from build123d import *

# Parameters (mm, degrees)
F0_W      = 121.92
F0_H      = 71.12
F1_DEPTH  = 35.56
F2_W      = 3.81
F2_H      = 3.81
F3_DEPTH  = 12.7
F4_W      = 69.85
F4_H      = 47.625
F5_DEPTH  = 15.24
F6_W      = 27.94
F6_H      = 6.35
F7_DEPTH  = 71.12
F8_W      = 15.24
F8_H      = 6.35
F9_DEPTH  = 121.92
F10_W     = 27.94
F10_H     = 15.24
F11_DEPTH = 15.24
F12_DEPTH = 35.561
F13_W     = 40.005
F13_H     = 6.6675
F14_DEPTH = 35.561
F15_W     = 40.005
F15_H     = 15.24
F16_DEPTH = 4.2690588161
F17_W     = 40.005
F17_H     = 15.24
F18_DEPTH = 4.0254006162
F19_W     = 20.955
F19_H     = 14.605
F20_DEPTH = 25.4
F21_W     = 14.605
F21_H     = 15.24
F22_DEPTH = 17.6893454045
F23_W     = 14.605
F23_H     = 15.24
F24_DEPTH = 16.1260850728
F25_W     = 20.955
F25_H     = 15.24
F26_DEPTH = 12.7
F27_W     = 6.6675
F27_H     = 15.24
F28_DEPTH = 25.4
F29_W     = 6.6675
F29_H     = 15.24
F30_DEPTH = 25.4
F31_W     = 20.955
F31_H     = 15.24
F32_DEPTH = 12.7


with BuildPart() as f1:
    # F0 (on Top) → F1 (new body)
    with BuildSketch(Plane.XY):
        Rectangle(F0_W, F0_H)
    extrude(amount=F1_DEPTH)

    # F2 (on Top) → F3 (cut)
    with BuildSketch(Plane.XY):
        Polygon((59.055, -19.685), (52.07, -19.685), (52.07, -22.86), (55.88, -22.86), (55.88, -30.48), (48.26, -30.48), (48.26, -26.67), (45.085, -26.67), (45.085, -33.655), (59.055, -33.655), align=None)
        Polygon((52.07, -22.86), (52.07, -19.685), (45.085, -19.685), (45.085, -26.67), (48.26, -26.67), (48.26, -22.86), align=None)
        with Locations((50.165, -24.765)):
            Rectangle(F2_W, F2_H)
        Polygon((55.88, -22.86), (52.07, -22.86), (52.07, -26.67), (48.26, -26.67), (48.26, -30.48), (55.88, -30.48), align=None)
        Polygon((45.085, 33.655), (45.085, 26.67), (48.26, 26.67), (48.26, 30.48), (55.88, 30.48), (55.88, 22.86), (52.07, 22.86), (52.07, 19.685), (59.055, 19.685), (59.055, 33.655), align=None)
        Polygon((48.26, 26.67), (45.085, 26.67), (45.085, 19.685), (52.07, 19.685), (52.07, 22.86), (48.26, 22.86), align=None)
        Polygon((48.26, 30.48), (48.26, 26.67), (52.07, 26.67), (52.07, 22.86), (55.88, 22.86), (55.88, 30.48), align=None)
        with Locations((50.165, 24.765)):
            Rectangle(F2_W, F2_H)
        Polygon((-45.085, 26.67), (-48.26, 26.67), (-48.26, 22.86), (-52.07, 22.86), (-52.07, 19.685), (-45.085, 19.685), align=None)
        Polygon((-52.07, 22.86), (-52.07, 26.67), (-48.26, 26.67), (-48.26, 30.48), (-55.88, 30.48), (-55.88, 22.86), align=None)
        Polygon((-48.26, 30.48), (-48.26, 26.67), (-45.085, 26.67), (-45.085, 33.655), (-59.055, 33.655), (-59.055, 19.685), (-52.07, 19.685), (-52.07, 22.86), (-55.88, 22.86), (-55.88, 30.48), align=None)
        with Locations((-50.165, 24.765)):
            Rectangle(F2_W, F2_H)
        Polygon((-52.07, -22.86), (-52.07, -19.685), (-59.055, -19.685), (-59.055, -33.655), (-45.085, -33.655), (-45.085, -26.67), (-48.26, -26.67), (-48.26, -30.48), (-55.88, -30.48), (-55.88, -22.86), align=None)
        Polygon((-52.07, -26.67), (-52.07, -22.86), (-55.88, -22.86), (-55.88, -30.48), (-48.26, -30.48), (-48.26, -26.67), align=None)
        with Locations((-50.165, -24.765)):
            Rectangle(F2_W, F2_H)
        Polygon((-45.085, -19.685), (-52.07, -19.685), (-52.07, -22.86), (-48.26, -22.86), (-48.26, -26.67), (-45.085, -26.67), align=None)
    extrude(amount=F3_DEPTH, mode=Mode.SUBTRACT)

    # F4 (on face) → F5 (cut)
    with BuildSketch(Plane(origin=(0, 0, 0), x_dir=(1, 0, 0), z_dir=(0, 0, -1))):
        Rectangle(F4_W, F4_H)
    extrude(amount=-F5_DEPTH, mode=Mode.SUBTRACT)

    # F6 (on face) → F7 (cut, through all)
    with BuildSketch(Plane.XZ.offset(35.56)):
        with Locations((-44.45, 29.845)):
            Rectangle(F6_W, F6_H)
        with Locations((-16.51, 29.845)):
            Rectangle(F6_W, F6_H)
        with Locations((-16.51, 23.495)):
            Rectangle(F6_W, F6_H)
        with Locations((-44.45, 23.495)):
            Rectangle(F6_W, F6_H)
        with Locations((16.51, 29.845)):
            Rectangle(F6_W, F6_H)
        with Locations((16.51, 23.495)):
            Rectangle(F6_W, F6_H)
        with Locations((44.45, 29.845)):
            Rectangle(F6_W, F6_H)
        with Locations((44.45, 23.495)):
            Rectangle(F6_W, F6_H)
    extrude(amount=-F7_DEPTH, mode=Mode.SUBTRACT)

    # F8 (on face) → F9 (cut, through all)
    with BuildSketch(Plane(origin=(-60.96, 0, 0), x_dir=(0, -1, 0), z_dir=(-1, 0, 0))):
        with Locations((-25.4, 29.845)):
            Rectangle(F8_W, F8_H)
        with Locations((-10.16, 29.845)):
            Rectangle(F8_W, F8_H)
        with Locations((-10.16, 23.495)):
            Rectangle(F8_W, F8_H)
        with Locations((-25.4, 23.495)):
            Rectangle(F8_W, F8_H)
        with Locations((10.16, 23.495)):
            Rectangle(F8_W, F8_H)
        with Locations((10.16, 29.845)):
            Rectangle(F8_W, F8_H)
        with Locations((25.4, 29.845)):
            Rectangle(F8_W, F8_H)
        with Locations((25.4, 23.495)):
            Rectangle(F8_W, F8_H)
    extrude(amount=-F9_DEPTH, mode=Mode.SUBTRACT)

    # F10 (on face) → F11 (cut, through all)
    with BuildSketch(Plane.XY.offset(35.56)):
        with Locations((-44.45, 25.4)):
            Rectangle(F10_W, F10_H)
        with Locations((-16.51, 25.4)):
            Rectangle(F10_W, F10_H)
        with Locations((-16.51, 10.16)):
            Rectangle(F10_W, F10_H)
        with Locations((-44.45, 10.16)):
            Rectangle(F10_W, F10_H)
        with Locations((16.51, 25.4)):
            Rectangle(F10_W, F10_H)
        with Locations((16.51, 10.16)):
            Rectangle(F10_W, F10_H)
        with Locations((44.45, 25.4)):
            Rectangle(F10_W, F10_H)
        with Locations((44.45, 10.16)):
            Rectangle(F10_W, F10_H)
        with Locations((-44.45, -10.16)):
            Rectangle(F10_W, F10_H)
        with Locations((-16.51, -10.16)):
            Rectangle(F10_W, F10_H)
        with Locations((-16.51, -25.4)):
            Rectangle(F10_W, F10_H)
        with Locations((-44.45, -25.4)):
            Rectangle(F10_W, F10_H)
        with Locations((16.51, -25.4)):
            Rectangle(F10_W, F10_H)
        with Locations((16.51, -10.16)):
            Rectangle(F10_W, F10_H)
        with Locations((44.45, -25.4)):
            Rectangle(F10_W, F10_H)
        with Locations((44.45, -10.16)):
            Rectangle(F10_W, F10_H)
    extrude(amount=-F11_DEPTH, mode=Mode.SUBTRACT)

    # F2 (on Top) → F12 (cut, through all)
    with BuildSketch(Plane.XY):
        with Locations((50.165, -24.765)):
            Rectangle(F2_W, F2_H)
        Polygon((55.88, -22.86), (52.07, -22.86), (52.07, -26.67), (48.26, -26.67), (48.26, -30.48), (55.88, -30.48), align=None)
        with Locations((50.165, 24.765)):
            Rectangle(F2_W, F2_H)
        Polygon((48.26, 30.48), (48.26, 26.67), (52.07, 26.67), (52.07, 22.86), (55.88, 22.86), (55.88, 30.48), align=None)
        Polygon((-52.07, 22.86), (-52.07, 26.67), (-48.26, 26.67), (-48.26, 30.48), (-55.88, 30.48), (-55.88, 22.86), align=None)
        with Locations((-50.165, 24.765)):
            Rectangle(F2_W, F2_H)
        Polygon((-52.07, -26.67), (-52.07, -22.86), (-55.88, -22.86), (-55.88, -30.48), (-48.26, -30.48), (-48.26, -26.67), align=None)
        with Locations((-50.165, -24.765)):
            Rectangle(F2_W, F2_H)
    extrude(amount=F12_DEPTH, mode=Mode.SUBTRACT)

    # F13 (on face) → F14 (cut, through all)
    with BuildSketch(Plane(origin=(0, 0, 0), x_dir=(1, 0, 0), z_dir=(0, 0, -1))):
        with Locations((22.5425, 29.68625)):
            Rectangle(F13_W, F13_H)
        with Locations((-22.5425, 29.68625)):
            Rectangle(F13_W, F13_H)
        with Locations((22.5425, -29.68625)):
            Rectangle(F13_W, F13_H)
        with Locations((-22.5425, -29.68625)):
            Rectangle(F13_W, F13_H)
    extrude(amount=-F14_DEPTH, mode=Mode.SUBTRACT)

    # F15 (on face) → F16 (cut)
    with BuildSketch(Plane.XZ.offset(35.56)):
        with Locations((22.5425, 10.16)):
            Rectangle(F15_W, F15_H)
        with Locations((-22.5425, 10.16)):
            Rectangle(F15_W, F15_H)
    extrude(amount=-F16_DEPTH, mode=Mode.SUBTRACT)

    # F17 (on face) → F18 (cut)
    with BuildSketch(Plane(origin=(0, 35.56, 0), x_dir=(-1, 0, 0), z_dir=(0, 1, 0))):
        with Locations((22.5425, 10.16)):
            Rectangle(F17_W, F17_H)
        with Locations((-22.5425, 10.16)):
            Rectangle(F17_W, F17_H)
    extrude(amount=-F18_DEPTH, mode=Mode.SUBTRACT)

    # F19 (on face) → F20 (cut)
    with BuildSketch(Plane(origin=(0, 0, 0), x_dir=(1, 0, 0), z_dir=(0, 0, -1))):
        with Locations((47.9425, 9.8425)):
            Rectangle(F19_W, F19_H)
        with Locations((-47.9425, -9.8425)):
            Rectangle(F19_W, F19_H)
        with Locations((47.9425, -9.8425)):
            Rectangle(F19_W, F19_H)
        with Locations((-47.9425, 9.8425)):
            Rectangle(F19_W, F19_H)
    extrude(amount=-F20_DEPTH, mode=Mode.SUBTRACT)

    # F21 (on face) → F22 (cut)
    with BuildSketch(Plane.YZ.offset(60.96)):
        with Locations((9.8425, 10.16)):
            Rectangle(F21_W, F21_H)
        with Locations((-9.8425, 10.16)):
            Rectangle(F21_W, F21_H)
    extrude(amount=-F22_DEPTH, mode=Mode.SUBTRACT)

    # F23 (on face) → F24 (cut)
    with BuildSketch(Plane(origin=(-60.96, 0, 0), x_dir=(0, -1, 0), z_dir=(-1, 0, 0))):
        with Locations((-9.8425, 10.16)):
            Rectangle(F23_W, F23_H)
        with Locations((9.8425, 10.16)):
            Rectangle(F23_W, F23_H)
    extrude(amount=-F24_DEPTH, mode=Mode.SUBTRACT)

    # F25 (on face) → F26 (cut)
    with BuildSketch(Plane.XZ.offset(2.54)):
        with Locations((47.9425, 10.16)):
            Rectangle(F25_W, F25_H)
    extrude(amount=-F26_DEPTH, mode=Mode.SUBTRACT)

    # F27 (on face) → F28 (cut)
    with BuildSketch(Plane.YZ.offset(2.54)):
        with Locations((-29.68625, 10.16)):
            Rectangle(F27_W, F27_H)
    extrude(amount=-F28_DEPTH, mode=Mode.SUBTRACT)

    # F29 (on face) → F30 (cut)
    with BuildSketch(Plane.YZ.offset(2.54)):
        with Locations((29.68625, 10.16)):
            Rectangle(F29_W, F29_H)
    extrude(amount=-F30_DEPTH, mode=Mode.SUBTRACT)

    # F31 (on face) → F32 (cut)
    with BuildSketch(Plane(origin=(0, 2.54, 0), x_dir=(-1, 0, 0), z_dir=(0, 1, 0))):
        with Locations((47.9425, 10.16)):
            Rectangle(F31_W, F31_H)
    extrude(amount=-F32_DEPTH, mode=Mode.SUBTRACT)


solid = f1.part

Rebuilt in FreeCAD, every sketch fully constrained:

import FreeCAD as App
import Part
import Sketcher
Q = App.Units.Quantity


def add_polygon(sketch, points):
    """Adds a closed chain of lines whose ends are joined by coincident constraints."""
    first, n = sketch.GeometryCount, len(points)
    for a, b in zip(points, points[1:] + points[:1]):
        sketch.addGeometry(Part.LineSegment(App.Vector(*a, 0), App.Vector(*b, 0)), False)
    for i in range(n):
        sketch.addConstraint(Sketcher.Constraint("Coincident", first + i, 2, first + (i + 1) % n, 1))

doc = App.newDocument("Part")
body = doc.addObject("PartDesign::Body", "Body")

# Sketch on XY plane
sketch1 = body.newObject("Sketcher::SketchObject", "Sketch")
sketch1.AttachmentSupport = (doc.getObject("XY_Plane"), [""])
sketch1.MapMode = "FlatFace"
add_polygon(sketch1, [(-61, 36), (-61, -36), (61, -36), (61, 36)])  # lines 0-3
sketch1.addConstraint(Sketcher.Constraint("Vertical", 0))
sketch1.addConstraint(Sketcher.Constraint("Horizontal", 1))
sketch1.addConstraint(Sketcher.Constraint("Vertical", 2))
sketch1.addConstraint(Sketcher.Constraint("Horizontal", 3))
sketch1.addConstraint(Sketcher.Constraint("Symmetric", 0, 2, 2, 2, -1, 1))
sketch1.addConstraint(Sketcher.Constraint("DistanceX", 1, 1, 1, 2, Q("4.8 in")))
sketch1.addConstraint(Sketcher.Constraint("DistanceY", 0, 2, 0, 1, Q("2.8 in")))
pad1 = body.newObject("PartDesign::Pad", "Pad")
pad1.Profile = sketch1
pad1.Length = Q("1.4 in")

# Sketch on XY plane
sketch2 = body.newObject("Sketcher::SketchObject", "Sketch001")
sketch2.AttachmentSupport = (doc.getObject("XY_Plane"), [""])
sketch2.MapMode = "FlatFace"
add_polygon(sketch2, [(59, -20), (45, -20), (45, -34), (59, -34)])  # lines 0-3
add_polygon(sketch2, [(45, 34), (45, 20), (59, 20), (59, 34)])  # lines 4-7
add_polygon(sketch2, [(-45, 20), (-45, 34), (-59, 34), (-59, 20)])  # lines 8-11
add_polygon(sketch2, [(-59, -20), (-59, -34), (-45, -34), (-45, -20)])  # lines 12-15
sketch2.addConstraint(Sketcher.Constraint("Horizontal", 0))
sketch2.addConstraint(Sketcher.Constraint("Vertical", 1))
sketch2.addConstraint(Sketcher.Constraint("Horizontal", 2))
sketch2.addConstraint(Sketcher.Constraint("Vertical", 3))
sketch2.addConstraint(Sketcher.Constraint("Vertical", 4))
sketch2.addConstraint(Sketcher.Constraint("Horizontal", 5))
sketch2.addConstraint(Sketcher.Constraint("Vertical", 6))
sketch2.addConstraint(Sketcher.Constraint("Horizontal", 7))
sketch2.addConstraint(Sketcher.Constraint("Vertical", 8))
sketch2.addConstraint(Sketcher.Constraint("Horizontal", 9))
sketch2.addConstraint(Sketcher.Constraint("Vertical", 10))
sketch2.addConstraint(Sketcher.Constraint("Horizontal", 11))
sketch2.addConstraint(Sketcher.Constraint("Vertical", 12))
sketch2.addConstraint(Sketcher.Constraint("Horizontal", 13))
sketch2.addConstraint(Sketcher.Constraint("Vertical", 14))
sketch2.addConstraint(Sketcher.Constraint("Horizontal", 15))
sketch2.addConstraint(Sketcher.Constraint("Symmetric", 1, 2, 8, 2, -1, 1))
sketch2.addConstraint(Sketcher.Constraint("Symmetric", 3, 2, 10, 2, -1, 1))
sketch2.addConstraint(Sketcher.Constraint("Symmetric", 6, 2, 12, 2, -1, 1))
sketch2.addConstraint(Sketcher.Constraint("Symmetric", 4, 2, 14, 2, -1, 1))
sketch2.addConstraint(Sketcher.Constraint("Symmetric", 7, 2, 8, 2, -2))
sketch2.addConstraint(Sketcher.Constraint("Symmetric", 5, 2, 10, 2, -2))
sketch2.addConstraint(Sketcher.Constraint("Equal", 15, 1))
sketch2.addConstraint(Sketcher.Constraint("DistanceX", 0, 2, 0, 1, Q("0.55 in")))
sketch2.addConstraint(Sketcher.Constraint("DistanceY", 1, 2, 4, 2, Q("2.1 in")))
sketch2.addConstraint(Sketcher.Constraint("DistanceX", 8, 2, 6, 2, Q("4.1 in")))
pocket1 = body.newObject("PartDesign::Pocket", "Pocket")
pocket1.Profile = sketch2
pocket1.Length = Q("0.5 in")
pocket1.Reversed = True

# Sketch on XY plane
sketch3 = body.newObject("Sketcher::SketchObject", "Sketch002")
sketch3.AttachmentSupport = (doc.getObject("XY_Plane"), [""])
sketch3.MapMode = "FlatFace"
add_polygon(sketch3, [(-35, -24), (-35, 24), (35, 24), (35, -24)])  # lines 0-3
sketch3.addConstraint(Sketcher.Constraint("Vertical", 0))
sketch3.addConstraint(Sketcher.Constraint("Horizontal", 1))
sketch3.addConstraint(Sketcher.Constraint("Vertical", 2))
sketch3.addConstraint(Sketcher.Constraint("Horizontal", 3))
sketch3.addConstraint(Sketcher.Constraint("Symmetric", 0, 2, 2, 2, -1, 1))
sketch3.addConstraint(Sketcher.Constraint("DistanceX", 1, 1, 1, 2, Q("2.75 in")))
sketch3.addConstraint(Sketcher.Constraint("DistanceY", 0, 1, 0, 2, Q("1.875 in")))
pocket2 = body.newObject("PartDesign::Pocket", "Pocket001")
pocket2.Profile = sketch3
pocket2.Length = Q("0.6 in")
pocket2.Reversed = True

# Sketch on XZ plane
sketch4 = body.newObject("Sketcher::SketchObject", "Sketch003")
sketch4.AttachmentSupport = (doc.getObject("XZ_Plane"), [""])
sketch4.MapMode = "FlatFace"
sketch4.AttachmentOffset = App.Placement(App.Vector(0, 0, 1.4 * 25.4), App.Rotation())
add_polygon(sketch4, [(-58, 33), (-58, 20), (-3, 20), (-3, 33)])  # lines 0-3
add_polygon(sketch4, [(3, 33), (3, 20), (58, 20), (58, 33)])  # lines 4-7
sketch4.addConstraint(Sketcher.Constraint("Vertical", 0))
sketch4.addConstraint(Sketcher.Constraint("Horizontal", 1))
sketch4.addConstraint(Sketcher.Constraint("Vertical", 2))
sketch4.addConstraint(Sketcher.Constraint("Horizontal", 3))
sketch4.addConstraint(Sketcher.Constraint("Vertical", 4))
sketch4.addConstraint(Sketcher.Constraint("Horizontal", 5))
sketch4.addConstraint(Sketcher.Constraint("Vertical", 6))
sketch4.addConstraint(Sketcher.Constraint("Horizontal", 7))
sketch4.addConstraint(Sketcher.Constraint("Symmetric", 1, 2, 4, 2, -2))
sketch4.addConstraint(Sketcher.Constraint("Symmetric", 3, 2, 6, 2, -2))
sketch4.addConstraint(Sketcher.Constraint("DistanceX", 1, 1, 1, 2, Q("2.2 in")))
sketch4.addConstraint(Sketcher.Constraint("DistanceY", 0, 2, 0, 1, Q("0.5 in")))
sketch4.addConstraint(Sketcher.Constraint("DistanceX", 0, 2, -1, 1, Q("2.3 in")))
sketch4.addConstraint(Sketcher.Constraint("DistanceY", -1, 1, 0, 2, Q("0.8 in")))
pocket3 = body.newObject("PartDesign::Pocket", "Pocket002")
pocket3.Profile = sketch4
pocket3.Type = "ThroughAll"

# Sketch on YZ plane
sketch5 = body.newObject("Sketcher::SketchObject", "Sketch004")
sketch5.AttachmentSupport = (doc.getObject("YZ_Plane"), [""])
sketch5.MapMode = "FlatFace"
sketch5.AttachmentOffset = App.Placement(App.Vector(0, 0, -2.4 * 25.4), App.Rotation())
add_polygon(sketch5, [(33, 33), (33, 20), (3, 20), (3, 33)])  # lines 0-3
add_polygon(sketch5, [(-3, 20), (-33, 20), (-33, 33), (-3, 33)])  # lines 4-7
sketch5.addConstraint(Sketcher.Constraint("Vertical", 0))
sketch5.addConstraint(Sketcher.Constraint("Horizontal", 1))
sketch5.addConstraint(Sketcher.Constraint("Vertical", 2))
sketch5.addConstraint(Sketcher.Constraint("Horizontal", 3))
sketch5.addConstraint(Sketcher.Constraint("Horizontal", 4))
sketch5.addConstraint(Sketcher.Constraint("Vertical", 5))
sketch5.addConstraint(Sketcher.Constraint("Horizontal", 6))
sketch5.addConstraint(Sketcher.Constraint("Vertical", 7))
sketch5.addConstraint(Sketcher.Constraint("Symmetric", 0, 2, 4, 2, -2))
sketch5.addConstraint(Sketcher.Constraint("Symmetric", 2, 2, 6, 2, -2))
sketch5.addConstraint(Sketcher.Constraint("DistanceX", 1, 2, 1, 1, Q("1.2 in")))
sketch5.addConstraint(Sketcher.Constraint("DistanceY", 0, 2, 0, 1, Q("0.5 in")))
sketch5.addConstraint(Sketcher.Constraint("DistanceX", -1, 1, 0, 2, Q("1.3 in")))
sketch5.addConstraint(Sketcher.Constraint("DistanceY", -1, 1, 0, 2, Q("0.8 in")))
pocket4 = body.newObject("PartDesign::Pocket", "Pocket003")
pocket4.Profile = sketch5
pocket4.Type = "ThroughAll"
pocket4.Reversed = True

# Sketch on XY plane
sketch6 = body.newObject("Sketcher::SketchObject", "Sketch005")
sketch6.AttachmentSupport = (doc.getObject("XY_Plane"), [""])
sketch6.MapMode = "FlatFace"
sketch6.AttachmentOffset = App.Placement(App.Vector(0, 0, 1.4 * 25.4), App.Rotation())
add_polygon(sketch6, [(-58, 33), (-58, 3), (-3, 3), (-3, 33)])  # lines 0-3
add_polygon(sketch6, [(3, 33), (3, 3), (58, 3), (58, 33)])  # lines 4-7
add_polygon(sketch6, [(-58, -3), (-58, -33), (-3, -33), (-3, -3)])  # lines 8-11
add_polygon(sketch6, [(3, -33), (58, -33), (58, -3), (3, -3)])  # lines 12-15
sketch6.addConstraint(Sketcher.Constraint("Vertical", 0))
sketch6.addConstraint(Sketcher.Constraint("Horizontal", 1))
sketch6.addConstraint(Sketcher.Constraint("Vertical", 2))
sketch6.addConstraint(Sketcher.Constraint("Horizontal", 3))
sketch6.addConstraint(Sketcher.Constraint("Vertical", 4))
sketch6.addConstraint(Sketcher.Constraint("Horizontal", 5))
sketch6.addConstraint(Sketcher.Constraint("Vertical", 6))
sketch6.addConstraint(Sketcher.Constraint("Horizontal", 7))
sketch6.addConstraint(Sketcher.Constraint("Vertical", 8))
sketch6.addConstraint(Sketcher.Constraint("Horizontal", 9))
sketch6.addConstraint(Sketcher.Constraint("Vertical", 10))
sketch6.addConstraint(Sketcher.Constraint("Horizontal", 11))
sketch6.addConstraint(Sketcher.Constraint("Horizontal", 12))
sketch6.addConstraint(Sketcher.Constraint("Vertical", 13))
sketch6.addConstraint(Sketcher.Constraint("Horizontal", 14))
sketch6.addConstraint(Sketcher.Constraint("Vertical", 15))
sketch6.addConstraint(Sketcher.Constraint("Symmetric", 6, 2, 8, 2, -1, 1))
sketch6.addConstraint(Sketcher.Constraint("Symmetric", 4, 2, 10, 2, -1, 1))
sketch6.addConstraint(Sketcher.Constraint("Symmetric", 3, 2, 12, 2, -1, 1))
sketch6.addConstraint(Sketcher.Constraint("Symmetric", 1, 2, 14, 2, -1, 1))
sketch6.addConstraint(Sketcher.Constraint("Symmetric", 1, 2, 4, 2, -2))
sketch6.addConstraint(Sketcher.Constraint("Symmetric", 3, 2, 6, 2, -2))
sketch6.addConstraint(Sketcher.Constraint("DistanceX", 1, 1, 1, 2, Q("2.2 in")))
sketch6.addConstraint(Sketcher.Constraint("DistanceY", 0, 2, 0, 1, Q("1.2 in")))
sketch6.addConstraint(Sketcher.Constraint("DistanceX", 0, 2, -1, 1, Q("2.3 in")))
sketch6.addConstraint(Sketcher.Constraint("DistanceY", -1, 1, 0, 2, Q("0.1 in")))
pocket5 = body.newObject("PartDesign::Pocket", "Pocket004")
pocket5.Profile = sketch6
pocket5.Length = Q("0.6 in")

# Sketch on XY plane
sketch7 = body.newObject("Sketcher::SketchObject", "Sketch006")
sketch7.AttachmentSupport = (doc.getObject("XY_Plane"), [""])
sketch7.MapMode = "FlatFace"
add_polygon(sketch7, [(48, -23), (48, -30), (56, -30), (56, -23)])  # lines 0-3
add_polygon(sketch7, [(48, 23), (56, 23), (56, 30), (48, 30)])  # lines 4-7
add_polygon(sketch7, [(-48, 30), (-56, 30), (-56, 23), (-48, 23)])  # lines 8-11
add_polygon(sketch7, [(-56, -23), (-56, -30), (-48, -30), (-48, -23)])  # lines 12-15
sketch7.addConstraint(Sketcher.Constraint("Vertical", 0))
sketch7.addConstraint(Sketcher.Constraint("Horizontal", 1))
sketch7.addConstraint(Sketcher.Constraint("Vertical", 2))
sketch7.addConstraint(Sketcher.Constraint("Horizontal", 3))
sketch7.addConstraint(Sketcher.Constraint("Horizontal", 4))
sketch7.addConstraint(Sketcher.Constraint("Vertical", 5))
sketch7.addConstraint(Sketcher.Constraint("Horizontal", 6))
sketch7.addConstraint(Sketcher.Constraint("Vertical", 7))
sketch7.addConstraint(Sketcher.Constraint("Horizontal", 8))
sketch7.addConstraint(Sketcher.Constraint("Vertical", 9))
sketch7.addConstraint(Sketcher.Constraint("Horizontal", 10))
sketch7.addConstraint(Sketcher.Constraint("Vertical", 11))
sketch7.addConstraint(Sketcher.Constraint("Vertical", 12))
sketch7.addConstraint(Sketcher.Constraint("Horizontal", 13))
sketch7.addConstraint(Sketcher.Constraint("Vertical", 14))
sketch7.addConstraint(Sketcher.Constraint("Horizontal", 15))
sketch7.addConstraint(Sketcher.Constraint("Symmetric", 1, 2, 8, 2, -1, 1))
sketch7.addConstraint(Sketcher.Constraint("Symmetric", 3, 2, 10, 2, -1, 1))
sketch7.addConstraint(Sketcher.Constraint("Symmetric", 5, 2, 12, 2, -1, 1))
sketch7.addConstraint(Sketcher.Constraint("Symmetric", 7, 2, 14, 2, -1, 1))
sketch7.addConstraint(Sketcher.Constraint("Symmetric", 5, 2, 8, 2, -2))
sketch7.addConstraint(Sketcher.Constraint("Symmetric", 7, 2, 10, 2, -2))
sketch7.addConstraint(Sketcher.Constraint("Equal", 15, 0))
sketch7.addConstraint(Sketcher.Constraint("DistanceX", 1, 1, 1, 2, Q("0.3 in")))
sketch7.addConstraint(Sketcher.Constraint("DistanceX", -1, 1, 0, 2, Q("1.9 in")))
sketch7.addConstraint(Sketcher.Constraint("DistanceY", 0, 2, -1, 1, Q("1.2 in")))
pocket6 = body.newObject("PartDesign::Pocket", "Pocket005")
pocket6.Profile = sketch7
pocket6.Type = "ThroughAll"
pocket6.Reversed = True

# Sketch on XY plane
sketch8 = body.newObject("Sketcher::SketchObject", "Sketch007")
sketch8.AttachmentSupport = (doc.getObject("XY_Plane"), [""])
sketch8.MapMode = "FlatFace"
add_polygon(sketch8, [(3, -33), (3, -26), (43, -26), (43, -33)])  # lines 0-3
add_polygon(sketch8, [(-43, -33), (-43, -26), (-3, -26), (-3, -33)])  # lines 4-7
add_polygon(sketch8, [(3, 26), (3, 33), (43, 33), (43, 26)])  # lines 8-11
add_polygon(sketch8, [(-43, 26), (-43, 33), (-3, 33), (-3, 26)])  # lines 12-15
sketch8.addConstraint(Sketcher.Constraint("Vertical", 0))
sketch8.addConstraint(Sketcher.Constraint("Horizontal", 1))
sketch8.addConstraint(Sketcher.Constraint("Vertical", 2))
sketch8.addConstraint(Sketcher.Constraint("Horizontal", 3))
sketch8.addConstraint(Sketcher.Constraint("Vertical", 4))
sketch8.addConstraint(Sketcher.Constraint("Horizontal", 5))
sketch8.addConstraint(Sketcher.Constraint("Vertical", 6))
sketch8.addConstraint(Sketcher.Constraint("Horizontal", 7))
sketch8.addConstraint(Sketcher.Constraint("Vertical", 8))
sketch8.addConstraint(Sketcher.Constraint("Horizontal", 9))
sketch8.addConstraint(Sketcher.Constraint("Vertical", 10))
sketch8.addConstraint(Sketcher.Constraint("Horizontal", 11))
sketch8.addConstraint(Sketcher.Constraint("Vertical", 12))
sketch8.addConstraint(Sketcher.Constraint("Horizontal", 13))
sketch8.addConstraint(Sketcher.Constraint("Vertical", 14))
sketch8.addConstraint(Sketcher.Constraint("Horizontal", 15))
sketch8.addConstraint(Sketcher.Constraint("Symmetric", 6, 2, 8, 2, -1, 1))
sketch8.addConstraint(Sketcher.Constraint("Symmetric", 4, 2, 10, 2, -1, 1))
sketch8.addConstraint(Sketcher.Constraint("Symmetric", 2, 2, 12, 2, -1, 1))
sketch8.addConstraint(Sketcher.Constraint("Symmetric", 0, 2, 14, 2, -1, 1))
sketch8.addConstraint(Sketcher.Constraint("Symmetric", 1, 2, 4, 2, -2))
sketch8.addConstraint(Sketcher.Constraint("Symmetric", 3, 2, 6, 2, -2))
sketch8.addConstraint(Sketcher.Constraint("DistanceX", -1, 1, 0, 2, Q("0.1 in")))
sketch8.addConstraint(Sketcher.Constraint("DistanceY", 2, 2, -1, 1, Q("1.3 in")))
sketch8.addConstraint(Sketcher.Constraint("DistanceX", 1, 1, 1, 2, Q("1.575 in")))
sketch8.addConstraint(Sketcher.Constraint("DistanceY", 0, 1, 0, 2, Q("0.2625 in")))
pocket7 = body.newObject("PartDesign::Pocket", "Pocket006")
pocket7.Profile = sketch8
pocket7.Type = "ThroughAll"
pocket7.Reversed = True

# Sketch on XZ plane
sketch9 = body.newObject("Sketcher::SketchObject", "Sketch008")
sketch9.AttachmentSupport = (doc.getObject("XZ_Plane"), [""])
sketch9.MapMode = "FlatFace"
sketch9.AttachmentOffset = App.Placement(App.Vector(0, 0, 1.4 * 25.4), App.Rotation())
add_polygon(sketch9, [(3, 18), (3, 3), (43, 3), (43, 18)])  # lines 0-3
add_polygon(sketch9, [(-43, 18), (-43, 3), (-3, 3), (-3, 18)])  # lines 4-7
sketch9.addConstraint(Sketcher.Constraint("Vertical", 0))
sketch9.addConstraint(Sketcher.Constraint("Horizontal", 1))
sketch9.addConstraint(Sketcher.Constraint("Vertical", 2))
sketch9.addConstraint(Sketcher.Constraint("Horizontal", 3))
sketch9.addConstraint(Sketcher.Constraint("Vertical", 4))
sketch9.addConstraint(Sketcher.Constraint("Horizontal", 5))
sketch9.addConstraint(Sketcher.Constraint("Vertical", 6))
sketch9.addConstraint(Sketcher.Constraint("Horizontal", 7))
sketch9.addConstraint(Sketcher.Constraint("Symmetric", 1, 2, 4, 2, -2))
sketch9.addConstraint(Sketcher.Constraint("Symmetric", 3, 2, 6, 2, -2))
sketch9.addConstraint(Sketcher.Constraint("DistanceY", 0, 2, 0, 1, Q("0.6 in")))
sketch9.addConstraint(Sketcher.Constraint("DistanceX", -1, 1, 0, 2, Q("0.1 in")))
sketch9.addConstraint(Sketcher.Constraint("DistanceY", -1, 1, 0, 2, Q("0.1 in")))
sketch9.addConstraint(Sketcher.Constraint("DistanceX", 1, 1, 1, 2, Q("1.575 in")))
pocket8 = body.newObject("PartDesign::Pocket", "Pocket007")
pocket8.Profile = sketch9
pocket8.Length = 4.269059

# Sketch on XZ plane
sketch10 = body.newObject("Sketcher::SketchObject", "Sketch009")
sketch10.AttachmentSupport = (doc.getObject("XZ_Plane"), [""])
sketch10.MapMode = "FlatFace"
sketch10.AttachmentOffset = App.Placement(App.Vector(0, 0, -1.4 * 25.4), App.Rotation())
add_polygon(sketch10, [(-3, 18), (-3, 3), (-43, 3), (-43, 18)])  # lines 0-3
add_polygon(sketch10, [(43, 18), (43, 3), (3, 3), (3, 18)])  # lines 4-7
sketch10.addConstraint(Sketcher.Constraint("Vertical", 0))
sketch10.addConstraint(Sketcher.Constraint("Horizontal", 1))
sketch10.addConstraint(Sketcher.Constraint("Vertical", 2))
sketch10.addConstraint(Sketcher.Constraint("Horizontal", 3))
sketch10.addConstraint(Sketcher.Constraint("Vertical", 4))
sketch10.addConstraint(Sketcher.Constraint("Horizontal", 5))
sketch10.addConstraint(Sketcher.Constraint("Vertical", 6))
sketch10.addConstraint(Sketcher.Constraint("Horizontal", 7))
sketch10.addConstraint(Sketcher.Constraint("Symmetric", 1, 2, 4, 2, -2))
sketch10.addConstraint(Sketcher.Constraint("Symmetric", 3, 2, 6, 2, -2))
sketch10.addConstraint(Sketcher.Constraint("DistanceY", 0, 2, 0, 1, Q("0.6 in")))
sketch10.addConstraint(Sketcher.Constraint("DistanceX", 0, 2, -1, 1, Q("0.1 in")))
sketch10.addConstraint(Sketcher.Constraint("DistanceY", -1, 1, 0, 2, Q("0.1 in")))
sketch10.addConstraint(Sketcher.Constraint("DistanceX", 1, 2, 1, 1, Q("1.575 in")))
pocket9 = body.newObject("PartDesign::Pocket", "Pocket008")
pocket9.Profile = sketch10
pocket9.Length = 4.025401
pocket9.Reversed = True

# Sketch on XY plane
sketch11 = body.newObject("Sketcher::SketchObject", "Sketch010")
sketch11.AttachmentSupport = (doc.getObject("XY_Plane"), [""])
sketch11.MapMode = "FlatFace"
add_polygon(sketch11, [(37, -17), (37, -3), (58, -3), (58, -17)])  # lines 0-3
add_polygon(sketch11, [(-58, 3), (-58, 17), (-37, 17), (-37, 3)])  # lines 4-7
add_polygon(sketch11, [(37, 3), (37, 17), (58, 17), (58, 3)])  # lines 8-11
add_polygon(sketch11, [(-58, -17), (-58, -3), (-37, -3), (-37, -17)])  # lines 12-15
sketch11.addConstraint(Sketcher.Constraint("Vertical", 0))
sketch11.addConstraint(Sketcher.Constraint("Horizontal", 1))
sketch11.addConstraint(Sketcher.Constraint("Vertical", 2))
sketch11.addConstraint(Sketcher.Constraint("Horizontal", 3))
sketch11.addConstraint(Sketcher.Constraint("Vertical", 4))
sketch11.addConstraint(Sketcher.Constraint("Horizontal", 5))
sketch11.addConstraint(Sketcher.Constraint("Vertical", 6))
sketch11.addConstraint(Sketcher.Constraint("Horizontal", 7))
sketch11.addConstraint(Sketcher.Constraint("Vertical", 8))
sketch11.addConstraint(Sketcher.Constraint("Horizontal", 9))
sketch11.addConstraint(Sketcher.Constraint("Vertical", 10))
sketch11.addConstraint(Sketcher.Constraint("Horizontal", 11))
sketch11.addConstraint(Sketcher.Constraint("Vertical", 12))
sketch11.addConstraint(Sketcher.Constraint("Horizontal", 13))
sketch11.addConstraint(Sketcher.Constraint("Vertical", 14))
sketch11.addConstraint(Sketcher.Constraint("Horizontal", 15))
sketch11.addConstraint(Sketcher.Constraint("Symmetric", 2, 2, 4, 2, -1, 1))
sketch11.addConstraint(Sketcher.Constraint("Symmetric", 0, 2, 6, 2, -1, 1))
sketch11.addConstraint(Sketcher.Constraint("Symmetric", 10, 2, 12, 2, -1, 1))
sketch11.addConstraint(Sketcher.Constraint("Symmetric", 8, 2, 14, 2, -1, 1))
sketch11.addConstraint(Sketcher.Constraint("Symmetric", 5, 2, 8, 2, -2))
sketch11.addConstraint(Sketcher.Constraint("Symmetric", 7, 2, 10, 2, -2))
sketch11.addConstraint(Sketcher.Constraint("DistanceY", 0, 2, -1, 1, Q("0.1 in")))
sketch11.addConstraint(Sketcher.Constraint("DistanceX", -1, 1, 1, 2, Q("2.3 in")))
sketch11.addConstraint(Sketcher.Constraint("DistanceX", 1, 1, 1, 2, Q("0.825 in")))
sketch11.addConstraint(Sketcher.Constraint("DistanceY", 0, 1, 0, 2, Q("0.575 in")))
pocket10 = body.newObject("PartDesign::Pocket", "Pocket009")
pocket10.Profile = sketch11
pocket10.Length = Q("1 in")
pocket10.Reversed = True

# Sketch on YZ plane
sketch12 = body.newObject("Sketcher::SketchObject", "Sketch011")
sketch12.AttachmentSupport = (doc.getObject("YZ_Plane"), [""])
sketch12.MapMode = "FlatFace"
sketch12.AttachmentOffset = App.Placement(App.Vector(0, 0, 2.4 * 25.4), App.Rotation())
add_polygon(sketch12, [(3, 18), (3, 3), (17, 3), (17, 18)])  # lines 0-3
add_polygon(sketch12, [(-17, 18), (-17, 3), (-3, 3), (-3, 18)])  # lines 4-7
sketch12.addConstraint(Sketcher.Constraint("Vertical", 0))
sketch12.addConstraint(Sketcher.Constraint("Horizontal", 1))
sketch12.addConstraint(Sketcher.Constraint("Vertical", 2))
sketch12.addConstraint(Sketcher.Constraint("Horizontal", 3))
sketch12.addConstraint(Sketcher.Constraint("Vertical", 4))
sketch12.addConstraint(Sketcher.Constraint("Horizontal", 5))
sketch12.addConstraint(Sketcher.Constraint("Vertical", 6))
sketch12.addConstraint(Sketcher.Constraint("Horizontal", 7))
sketch12.addConstraint(Sketcher.Constraint("Symmetric", 1, 2, 4, 2, -2))
sketch12.addConstraint(Sketcher.Constraint("Symmetric", 3, 2, 6, 2, -2))
sketch12.addConstraint(Sketcher.Constraint("DistanceY", 0, 2, 0, 1, Q("0.6 in")))
sketch12.addConstraint(Sketcher.Constraint("DistanceX", -1, 1, 0, 2, Q("0.1 in")))
sketch12.addConstraint(Sketcher.Constraint("DistanceY", -1, 1, 0, 2, Q("0.1 in")))
sketch12.addConstraint(Sketcher.Constraint("DistanceX", 1, 1, 1, 2, Q("0.575 in")))
pocket11 = body.newObject("PartDesign::Pocket", "Pocket010")
pocket11.Profile = sketch12
pocket11.Length = 17.689345

# Sketch on YZ plane
sketch13 = body.newObject("Sketcher::SketchObject", "Sketch012")
sketch13.AttachmentSupport = (doc.getObject("YZ_Plane"), [""])
sketch13.MapMode = "FlatFace"
sketch13.AttachmentOffset = App.Placement(App.Vector(0, 0, -2.4 * 25.4), App.Rotation())
add_polygon(sketch13, [(17, 18), (17, 3), (3, 3), (3, 18)])  # lines 0-3
add_polygon(sketch13, [(-3, 18), (-3, 3), (-17, 3), (-17, 18)])  # lines 4-7
sketch13.addConstraint(Sketcher.Constraint("Vertical", 0))
sketch13.addConstraint(Sketcher.Constraint("Horizontal", 1))
sketch13.addConstraint(Sketcher.Constraint("Vertical", 2))
sketch13.addConstraint(Sketcher.Constraint("Horizontal", 3))
sketch13.addConstraint(Sketcher.Constraint("Vertical", 4))
sketch13.addConstraint(Sketcher.Constraint("Horizontal", 5))
sketch13.addConstraint(Sketcher.Constraint("Vertical", 6))
sketch13.addConstraint(Sketcher.Constraint("Horizontal", 7))
sketch13.addConstraint(Sketcher.Constraint("Symmetric", 1, 2, 4, 2, -2))
sketch13.addConstraint(Sketcher.Constraint("Symmetric", 3, 2, 6, 2, -2))
sketch13.addConstraint(Sketcher.Constraint("DistanceY", 0, 2, 0, 1, Q("0.6 in")))
sketch13.addConstraint(Sketcher.Constraint("DistanceY", -1, 1, 0, 2, Q("0.1 in")))
sketch13.addConstraint(Sketcher.Constraint("DistanceX", -1, 1, 1, 2, Q("0.1 in")))
sketch13.addConstraint(Sketcher.Constraint("DistanceX", 1, 2, 1, 1, Q("0.575 in")))
pocket12 = body.newObject("PartDesign::Pocket", "Pocket011")
pocket12.Profile = sketch13
pocket12.Length = 16.126085
pocket12.Reversed = True

# Sketch on XZ plane
sketch14 = body.newObject("Sketcher::SketchObject", "Sketch013")
sketch14.AttachmentSupport = (doc.getObject("XZ_Plane"), [""])
sketch14.MapMode = "FlatFace"
sketch14.AttachmentOffset = App.Placement(App.Vector(0, 0, 0.1 * 25.4), App.Rotation())
add_polygon(sketch14, [(37, 18), (37, 3), (58, 3), (58, 18)])  # lines 0-3
sketch14.addConstraint(Sketcher.Constraint("Vertical", 0))
sketch14.addConstraint(Sketcher.Constraint("Horizontal", 1))
sketch14.addConstraint(Sketcher.Constraint("Vertical", 2))
sketch14.addConstraint(Sketcher.Constraint("Horizontal", 3))
sketch14.addConstraint(Sketcher.Constraint("DistanceY", 0, 2, 0, 1, Q("0.6 in")))
sketch14.addConstraint(Sketcher.Constraint("DistanceY", -1, 1, 0, 2, Q("0.1 in")))
sketch14.addConstraint(Sketcher.Constraint("DistanceX", -1, 1, 1, 2, Q("2.3 in")))
sketch14.addConstraint(Sketcher.Constraint("DistanceX", 1, 1, 1, 2, Q("0.825 in")))
pocket13 = body.newObject("PartDesign::Pocket", "Pocket012")
pocket13.Profile = sketch14
pocket13.Length = Q("0.5 in")

# Sketch on YZ plane
sketch15 = body.newObject("Sketcher::SketchObject", "Sketch014")
sketch15.AttachmentSupport = (doc.getObject("YZ_Plane"), [""])
sketch15.MapMode = "FlatFace"
sketch15.AttachmentOffset = App.Placement(App.Vector(0, 0, 0.1 * 25.4), App.Rotation())
add_polygon(sketch15, [(-33, 18), (-33, 3), (-26, 3), (-26, 18)])  # lines 0-3
sketch15.addConstraint(Sketcher.Constraint("Vertical", 0))
sketch15.addConstraint(Sketcher.Constraint("Horizontal", 1))
sketch15.addConstraint(Sketcher.Constraint("Vertical", 2))
sketch15.addConstraint(Sketcher.Constraint("Horizontal", 3))
sketch15.addConstraint(Sketcher.Constraint("DistanceY", 0, 2, 0, 1, Q("0.6 in")))
sketch15.addConstraint(Sketcher.Constraint("DistanceX", 0, 2, -1, 1, Q("1.3 in")))
sketch15.addConstraint(Sketcher.Constraint("DistanceY", -1, 1, 0, 2, Q("0.1 in")))
sketch15.addConstraint(Sketcher.Constraint("DistanceX", 1, 1, 1, 2, Q("0.2625 in")))
pocket14 = body.newObject("PartDesign::Pocket", "Pocket013")
pocket14.Profile = sketch15
pocket14.Length = Q("1 in")

# Sketch on YZ plane
sketch16 = body.newObject("Sketcher::SketchObject", "Sketch015")
sketch16.AttachmentSupport = (doc.getObject("YZ_Plane"), [""])
sketch16.MapMode = "FlatFace"
sketch16.AttachmentOffset = App.Placement(App.Vector(0, 0, 0.1 * 25.4), App.Rotation())
add_polygon(sketch16, [(26, 18), (26, 3), (33, 3), (33, 18)])  # lines 0-3
sketch16.addConstraint(Sketcher.Constraint("Vertical", 0))
sketch16.addConstraint(Sketcher.Constraint("Horizontal", 1))
sketch16.addConstraint(Sketcher.Constraint("Vertical", 2))
sketch16.addConstraint(Sketcher.Constraint("Horizontal", 3))
sketch16.addConstraint(Sketcher.Constraint("DistanceY", 0, 2, 0, 1, Q("0.6 in")))
sketch16.addConstraint(Sketcher.Constraint("DistanceY", -1, 1, 0, 2, Q("0.1 in")))
sketch16.addConstraint(Sketcher.Constraint("DistanceX", -1, 1, 1, 2, Q("1.3 in")))
sketch16.addConstraint(Sketcher.Constraint("DistanceX", 1, 1, 1, 2, Q("0.2625 in")))
pocket15 = body.newObject("PartDesign::Pocket", "Pocket014")
pocket15.Profile = sketch16
pocket15.Length = Q("1 in")

# Sketch on XZ plane
sketch17 = body.newObject("Sketcher::SketchObject", "Sketch016")
sketch17.AttachmentSupport = (doc.getObject("XZ_Plane"), [""])
sketch17.MapMode = "FlatFace"
sketch17.AttachmentOffset = App.Placement(App.Vector(0, 0, -0.1 * 25.4), App.Rotation())
add_polygon(sketch17, [(-37, 18), (-37, 3), (-58, 3), (-58, 18)])  # lines 0-3
sketch17.addConstraint(Sketcher.Constraint("Vertical", 0))
sketch17.addConstraint(Sketcher.Constraint("Horizontal", 1))
sketch17.addConstraint(Sketcher.Constraint("Vertical", 2))
sketch17.addConstraint(Sketcher.Constraint("Horizontal", 3))
sketch17.addConstraint(Sketcher.Constraint("DistanceY", 0, 2, 0, 1, Q("0.6 in")))
sketch17.addConstraint(Sketcher.Constraint("DistanceY", -1, 1, 0, 2, Q("0.1 in")))
sketch17.addConstraint(Sketcher.Constraint("DistanceX", 1, 2, -1, 1, Q("2.3 in")))
sketch17.addConstraint(Sketcher.Constraint("DistanceX", 1, 2, 1, 1, Q("0.825 in")))
pocket16 = body.newObject("PartDesign::Pocket", "Pocket015")
pocket16.Profile = sketch17
pocket16.Length = Q("0.5 in")
pocket16.Reversed = True

doc.recompute()
